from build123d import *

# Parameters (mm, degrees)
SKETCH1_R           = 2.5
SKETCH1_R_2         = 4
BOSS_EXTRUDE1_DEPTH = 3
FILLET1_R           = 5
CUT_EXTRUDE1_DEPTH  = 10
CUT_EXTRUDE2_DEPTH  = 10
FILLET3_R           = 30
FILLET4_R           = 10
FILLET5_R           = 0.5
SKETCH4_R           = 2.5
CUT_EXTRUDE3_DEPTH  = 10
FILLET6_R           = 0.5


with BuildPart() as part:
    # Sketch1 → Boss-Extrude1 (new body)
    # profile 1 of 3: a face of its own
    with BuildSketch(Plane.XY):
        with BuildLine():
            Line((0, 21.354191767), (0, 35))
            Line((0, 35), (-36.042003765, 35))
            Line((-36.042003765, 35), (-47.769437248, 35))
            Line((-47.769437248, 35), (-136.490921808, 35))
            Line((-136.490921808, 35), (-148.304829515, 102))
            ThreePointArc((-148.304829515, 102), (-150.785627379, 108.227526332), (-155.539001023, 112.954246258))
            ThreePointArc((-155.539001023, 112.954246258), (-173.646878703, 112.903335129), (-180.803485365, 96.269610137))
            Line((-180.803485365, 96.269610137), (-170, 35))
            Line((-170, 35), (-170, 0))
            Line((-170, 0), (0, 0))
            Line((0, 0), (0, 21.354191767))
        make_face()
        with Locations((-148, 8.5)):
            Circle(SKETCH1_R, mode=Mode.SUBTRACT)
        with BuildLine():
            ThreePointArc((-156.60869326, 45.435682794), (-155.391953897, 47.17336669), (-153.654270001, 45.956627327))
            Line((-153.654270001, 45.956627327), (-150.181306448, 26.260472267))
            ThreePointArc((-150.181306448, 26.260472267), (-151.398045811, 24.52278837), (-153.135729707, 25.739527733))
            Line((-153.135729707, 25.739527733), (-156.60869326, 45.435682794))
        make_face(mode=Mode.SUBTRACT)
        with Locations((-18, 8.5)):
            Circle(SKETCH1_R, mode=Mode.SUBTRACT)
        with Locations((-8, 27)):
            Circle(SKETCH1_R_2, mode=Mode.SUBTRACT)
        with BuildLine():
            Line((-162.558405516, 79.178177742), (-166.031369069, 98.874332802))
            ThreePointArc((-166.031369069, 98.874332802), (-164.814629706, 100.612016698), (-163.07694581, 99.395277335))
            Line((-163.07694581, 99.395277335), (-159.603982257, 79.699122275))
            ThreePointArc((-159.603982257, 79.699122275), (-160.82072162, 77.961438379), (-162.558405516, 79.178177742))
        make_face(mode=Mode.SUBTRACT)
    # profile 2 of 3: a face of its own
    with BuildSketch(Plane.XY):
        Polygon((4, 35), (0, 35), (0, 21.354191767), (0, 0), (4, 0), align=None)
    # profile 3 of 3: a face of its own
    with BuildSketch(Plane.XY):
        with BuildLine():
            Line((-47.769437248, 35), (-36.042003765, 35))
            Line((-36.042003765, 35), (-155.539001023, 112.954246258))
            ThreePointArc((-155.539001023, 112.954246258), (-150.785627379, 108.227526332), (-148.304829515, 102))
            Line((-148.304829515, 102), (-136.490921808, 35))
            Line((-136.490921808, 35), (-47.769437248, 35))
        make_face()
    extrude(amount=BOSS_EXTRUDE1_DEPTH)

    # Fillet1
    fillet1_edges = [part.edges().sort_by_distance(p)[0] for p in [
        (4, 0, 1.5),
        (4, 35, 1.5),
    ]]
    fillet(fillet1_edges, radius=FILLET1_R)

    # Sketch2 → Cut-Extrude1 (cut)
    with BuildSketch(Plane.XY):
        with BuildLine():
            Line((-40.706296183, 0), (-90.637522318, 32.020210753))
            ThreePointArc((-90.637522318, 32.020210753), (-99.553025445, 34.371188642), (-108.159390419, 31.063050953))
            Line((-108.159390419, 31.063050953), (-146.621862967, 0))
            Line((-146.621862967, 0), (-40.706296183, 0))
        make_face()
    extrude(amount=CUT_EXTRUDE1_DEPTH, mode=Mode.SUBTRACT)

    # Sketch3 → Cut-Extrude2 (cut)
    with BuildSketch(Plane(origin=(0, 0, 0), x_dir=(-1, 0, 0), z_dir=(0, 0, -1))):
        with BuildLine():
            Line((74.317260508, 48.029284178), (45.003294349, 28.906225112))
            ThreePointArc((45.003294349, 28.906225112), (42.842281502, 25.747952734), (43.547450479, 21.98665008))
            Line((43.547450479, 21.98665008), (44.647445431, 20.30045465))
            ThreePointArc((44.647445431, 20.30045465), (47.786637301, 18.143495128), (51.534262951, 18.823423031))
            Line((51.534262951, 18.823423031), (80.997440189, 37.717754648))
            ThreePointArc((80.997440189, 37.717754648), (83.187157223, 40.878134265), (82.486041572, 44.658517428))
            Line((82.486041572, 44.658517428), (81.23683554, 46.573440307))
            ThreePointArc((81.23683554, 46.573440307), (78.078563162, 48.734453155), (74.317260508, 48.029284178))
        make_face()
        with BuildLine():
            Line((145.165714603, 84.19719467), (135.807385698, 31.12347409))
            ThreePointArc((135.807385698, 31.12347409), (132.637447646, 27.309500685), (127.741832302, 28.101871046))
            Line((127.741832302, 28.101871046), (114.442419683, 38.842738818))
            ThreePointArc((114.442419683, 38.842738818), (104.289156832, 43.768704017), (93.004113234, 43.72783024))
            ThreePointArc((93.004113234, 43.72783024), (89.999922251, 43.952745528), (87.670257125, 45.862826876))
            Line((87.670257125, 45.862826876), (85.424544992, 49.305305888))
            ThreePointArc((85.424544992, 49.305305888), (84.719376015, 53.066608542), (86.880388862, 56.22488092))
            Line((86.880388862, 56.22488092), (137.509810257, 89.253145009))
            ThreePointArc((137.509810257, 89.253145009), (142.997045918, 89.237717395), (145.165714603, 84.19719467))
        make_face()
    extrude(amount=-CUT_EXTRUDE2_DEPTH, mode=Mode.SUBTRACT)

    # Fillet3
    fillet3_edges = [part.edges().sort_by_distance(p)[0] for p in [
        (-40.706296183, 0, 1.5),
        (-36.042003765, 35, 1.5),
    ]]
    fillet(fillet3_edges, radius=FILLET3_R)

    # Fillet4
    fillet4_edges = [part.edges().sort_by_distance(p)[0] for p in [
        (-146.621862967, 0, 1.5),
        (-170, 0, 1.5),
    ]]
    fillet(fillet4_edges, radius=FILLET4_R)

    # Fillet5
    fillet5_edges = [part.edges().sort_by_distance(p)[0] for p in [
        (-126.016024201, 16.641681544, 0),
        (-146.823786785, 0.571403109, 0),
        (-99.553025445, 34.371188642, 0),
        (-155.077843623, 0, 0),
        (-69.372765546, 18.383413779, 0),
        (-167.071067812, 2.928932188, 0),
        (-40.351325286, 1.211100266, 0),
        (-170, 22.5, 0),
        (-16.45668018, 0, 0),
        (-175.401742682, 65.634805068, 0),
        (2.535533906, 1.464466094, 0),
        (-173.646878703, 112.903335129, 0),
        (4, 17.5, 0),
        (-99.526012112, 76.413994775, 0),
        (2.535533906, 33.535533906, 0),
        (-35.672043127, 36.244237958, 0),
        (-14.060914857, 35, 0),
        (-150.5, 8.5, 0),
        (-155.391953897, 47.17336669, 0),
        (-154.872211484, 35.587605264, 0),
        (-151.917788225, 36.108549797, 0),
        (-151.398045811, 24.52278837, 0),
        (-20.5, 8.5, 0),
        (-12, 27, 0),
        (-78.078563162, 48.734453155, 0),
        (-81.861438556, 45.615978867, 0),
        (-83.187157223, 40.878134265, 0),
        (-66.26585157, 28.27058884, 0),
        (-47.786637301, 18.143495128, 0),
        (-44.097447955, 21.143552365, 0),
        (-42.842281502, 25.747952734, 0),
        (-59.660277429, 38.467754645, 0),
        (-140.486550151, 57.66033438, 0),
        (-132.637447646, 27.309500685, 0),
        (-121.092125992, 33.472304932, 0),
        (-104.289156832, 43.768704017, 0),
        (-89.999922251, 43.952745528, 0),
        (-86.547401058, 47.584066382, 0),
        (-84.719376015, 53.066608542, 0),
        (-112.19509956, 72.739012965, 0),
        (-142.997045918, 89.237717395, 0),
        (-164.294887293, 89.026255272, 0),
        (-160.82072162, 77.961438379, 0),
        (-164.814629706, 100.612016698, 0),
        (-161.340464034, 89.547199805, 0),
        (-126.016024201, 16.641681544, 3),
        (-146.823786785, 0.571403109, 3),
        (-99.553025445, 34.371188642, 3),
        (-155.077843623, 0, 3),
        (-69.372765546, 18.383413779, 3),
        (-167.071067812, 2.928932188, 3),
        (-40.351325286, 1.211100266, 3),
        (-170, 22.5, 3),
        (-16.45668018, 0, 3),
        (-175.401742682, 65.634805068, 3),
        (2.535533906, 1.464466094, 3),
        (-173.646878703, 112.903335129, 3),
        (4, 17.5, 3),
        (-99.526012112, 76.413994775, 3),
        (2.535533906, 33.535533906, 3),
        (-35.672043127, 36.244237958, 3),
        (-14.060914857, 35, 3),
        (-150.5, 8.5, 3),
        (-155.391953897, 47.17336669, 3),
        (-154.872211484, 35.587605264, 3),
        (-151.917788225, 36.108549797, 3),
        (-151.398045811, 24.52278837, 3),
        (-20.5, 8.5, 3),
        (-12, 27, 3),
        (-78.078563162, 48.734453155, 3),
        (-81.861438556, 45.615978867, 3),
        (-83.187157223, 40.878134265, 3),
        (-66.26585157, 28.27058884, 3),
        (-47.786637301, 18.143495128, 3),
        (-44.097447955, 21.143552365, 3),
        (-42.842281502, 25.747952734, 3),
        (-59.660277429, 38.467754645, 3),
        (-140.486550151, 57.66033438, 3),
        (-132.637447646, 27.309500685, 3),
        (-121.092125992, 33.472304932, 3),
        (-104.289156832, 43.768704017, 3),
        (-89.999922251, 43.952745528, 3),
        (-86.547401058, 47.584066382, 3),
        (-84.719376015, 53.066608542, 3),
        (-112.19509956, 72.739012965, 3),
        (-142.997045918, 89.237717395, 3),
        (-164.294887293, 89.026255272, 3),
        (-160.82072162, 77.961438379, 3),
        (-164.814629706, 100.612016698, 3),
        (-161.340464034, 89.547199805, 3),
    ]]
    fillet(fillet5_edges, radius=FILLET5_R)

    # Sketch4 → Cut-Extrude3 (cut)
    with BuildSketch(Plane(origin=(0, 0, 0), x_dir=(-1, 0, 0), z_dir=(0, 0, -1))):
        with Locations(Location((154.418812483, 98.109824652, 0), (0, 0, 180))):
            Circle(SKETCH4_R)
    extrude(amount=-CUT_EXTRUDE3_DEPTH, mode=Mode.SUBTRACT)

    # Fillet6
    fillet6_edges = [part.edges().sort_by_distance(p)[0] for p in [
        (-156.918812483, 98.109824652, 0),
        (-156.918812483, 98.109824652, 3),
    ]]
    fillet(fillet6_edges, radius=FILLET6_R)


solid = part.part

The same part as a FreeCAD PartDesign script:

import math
import FreeCAD as App
import Part
import Sketcher
Q = App.Units.Quantity


def edges_at(feature, points):
    """Names of the edges that pass closest to the given points."""
    edges = feature.Shape.Edges
    near = lambda p: min(range(len(edges)), key=lambda i: edges[i].distToShape(Part.Vertex(*p))[0])
    return sorted({f"Edge{near(p) + 1}" for p in points})

doc = App.newDocument("Part")
params = doc.addObject("Spreadsheet::Sheet", "Params")
for row, (alias, value) in enumerate([
    ("sketch1_diameter", "5 mm"),
    ("sketch1_diameter2", "8 mm"),
    ("sketch1_radius", "16.5 mm"),
    ("sketch1_radius2", "1.5 mm"),
    ("sketch1_width", "174 mm"),
    ("pad1_length", "3 mm"),
    ("fillet_radius", "5 mm"),
    ("sketch2_radius", "15 mm"),
    ("pocket1_length", "10 mm"),
    ("sketch3_radius", "5 mm"),
    ("sketch3_radius2", "25 mm"),
    ("sketch3_length", "35 mm"),
    ("pocket2_length", "10 mm"),
    ("fillet2_radius", "30 mm"),
    ("fillet3_radius", "10 mm"),
    ("fillet4_radius", "0.5 mm"),
    ("sketch4_diameter", "5 mm"),
    ("pocket3_length", "10 mm"),
    ("fillet5_radius", "0.5 mm"),
], start=1):
    params.set(f"A{row}", alias)
    params.set(f"B{row}", "=" + value)
    params.setAlias(f"B{row}", alias)

body = doc.addObject("PartDesign::Body", "Body")

sketch1 = body.newObject("Sketcher::SketchObject", "Sketch")
sketch1.AttachmentSupport = (doc.getObject("XY_Plane"), [""])
sketch1.MapMode = "FlatFace"
sketch1.addGeometry([
    Part.LineSegment(App.Vector(-36.042004, 35, 0), App.Vector(-155.539001, 112.954246, 0)),
    Part.ArcOfCircle(Part.Circle(App.Vector(-164.554157, 99.134805, 0), App.Vector(0, 0, 1), 16.5), math.radians(56.881452), math.radians(190)),
    Part.LineSegment(App.Vector(-180.803485, 96.26961, 0), App.Vector(-170, 35, 0)),
    Part.LineSegment(App.Vector(-170, 35, 0), App.Vector(-170, 0, 0)),
    Part.LineSegment(App.Vector(-170, 0, 0), App.Vector(4, 0, 0)),
    Part.LineSegment(App.Vector(4, 0, 0), App.Vector(4, 35, 0)),
    Part.LineSegment(App.Vector(4, 35, 0), App.Vector(-36.042004, 35, 0)),
    Part.Circle(App.Vector(-148, 8.5, 0), App.Vector(0, 0, 1), 2.5),
    Part.LineSegment(App.Vector(-153.13573, 25.739528, 0), App.Vector(-156.608693, 45.435683, 0)),
    Part.ArcOfCircle(Part.Circle(App.Vector(-155.131482, 45.696155, 0), App.Vector(0, 0, 1), 1.5), math.radians(10), math.radians(190)),
    Part.LineSegment(App.Vector(-153.65427, 45.956627, 0), App.Vector(-150.181306, 26.260472, 0)),
    Part.ArcOfCircle(Part.Circle(App.Vector(-151.658518, 26, 0), App.Vector(0, 0, 1), 1.5), math.radians(-170), math.radians(10)),
    Part.Circle(App.Vector(-18, 8.5, 0), App.Vector(0, 0, 1), 2.5),
    Part.Circle(App.Vector(-8, 27, 0), App.Vector(0, 0, 1), 4),
    Part.ArcOfCircle(Part.Circle(App.Vector(-161.081194, 79.43865, 0), App.Vector(0, 0, 1), 1.5), math.radians(-170), math.radians(10)),
    Part.LineSegment(App.Vector(-162.558406, 79.178178, 0), App.Vector(-166.031369, 98.874333, 0)),
    Part.ArcOfCircle(Part.Circle(App.Vector(-164.554157, 99.134805, 0), App.Vector(0, 0, 1), 1.5), math.radians(10), math.radians(190)),
    Part.LineSegment(App.Vector(-163.076946, 99.395277, 0), App.Vector(-159.603982, 79.699122, 0)),
], False)
sketch1.addConstraint([
    Sketcher.Constraint("Tangent", 0, 2, 1, 1),
    Sketcher.Constraint("Tangent", 1, 2, 2, 1),
    Sketcher.Constraint("Coincident", 2, 2, 3, 1),
    Sketcher.Constraint("Coincident", 3, 2, 4, 1),
    Sketcher.Constraint("Coincident", 4, 2, 5, 1),
    Sketcher.Constraint("Coincident", 5, 2, 6, 1),
    Sketcher.Constraint("Coincident", 6, 2, 0, 1),
    Sketcher.Constraint("Tangent", 8, 2, 9, 2),
    Sketcher.Constraint("Tangent", 9, 1, 10, 1),
    Sketcher.Constraint("Tangent", 10, 2, 11, 2),
    Sketcher.Constraint("Tangent", 11, 1, 8, 1),
    Sketcher.Constraint("Tangent", 14, 1, 15, 1),
    Sketcher.Constraint("Tangent", 15, 2, 16, 2),
    Sketcher.Constraint("Tangent", 16, 1, 17, 1),
    Sketcher.Constraint("Tangent", 17, 2, 14, 2),
    Sketcher.Constraint("Vertical", 3),
    Sketcher.Constraint("Horizontal", 4),
    Sketcher.Constraint("Vertical", 5),
    Sketcher.Constraint("Horizontal", 6),
    Sketcher.Constraint("Coincident", 16, 3, 1, 3),
    Sketcher.Constraint("Equal", 9, 11),
    Sketcher.Constraint("Equal", 7, 12),
    Sketcher.Constraint("Equal", 11, 14),
    Sketcher.Constraint("Equal", 14, 16),
    Sketcher.Constraint("PointOnObject", 3, 2, -1),
    Sketcher.Constraint("Parallel", 2, 8),
    Sketcher.Constraint("Parallel", 10, 15),
    Sketcher.Constraint("Horizontal", 7, 3, 12, 3),
    Sketcher.Constraint("Horizontal", 2, 2, 5, 2),
    Sketcher.Constraint("Equal", 10, 15),
    Sketcher.Constraint("Diameter", 7, Q("5 mm")),
    Sketcher.Constraint("Diameter", 13, Q("8 mm")),
    Sketcher.Constraint("Radius", 1, Q("16.5 mm")),
    Sketcher.Constraint("Radius", 9, Q("1.5 mm")),
    Sketcher.Constraint("DistanceX", 4, 1, 4, 2, Q("174 mm")),
    Sketcher.Constraint("DistanceY", 3, 2, 3, 1, Q("35 mm")),
    Sketcher.Constraint("Angle", 2, Q("-80 deg")),
    Sketcher.Constraint("Distance", 8, Q("20 mm")),
    Sketcher.Constraint("DistanceX", 7, 3, -1, 1, Q("148 mm")),
    Sketcher.Constraint("DistanceY", -1, 1, 11, 3, Q("26 mm")),
    Sketcher.Constraint("DistanceX", 12, 3, -1, 1, Q("18 mm")),
    Sketcher.Constraint("DistanceX", 13, 3, -1, 1, Q("8 mm")),
    Sketcher.Constraint("DistanceY", -1, 1, 13, 3, Q("27 mm")),
    Sketcher.Constraint("DistanceX", 2, 2, -1, 1, Q("170 mm")),
    Sketcher.Constraint("DistanceY", -1, 1, 7, 3, Q("8.5 mm")),
    Sketcher.Constraint("DistanceX", 0, 2, -1, 1, Q("155.539001 mm")),
    Sketcher.Constraint("DistanceX", 14, 3, 8, 2, Q("4.472501 mm")),
    Sketcher.Constraint("DistanceX", 6, 2, 6, 1, Q("40.042004 mm")),
])
sketch1.setExpression("Constraints[30]", "Params.sketch1_diameter")
sketch1.setExpression("Constraints[31]", "Params.sketch1_diameter2")
sketch1.setExpression("Constraints[32]", "Params.sketch1_radius")
sketch1.setExpression("Constraints[33]", "Params.sketch1_radius2")
sketch1.setExpression("Constraints[34]", "Params.sketch1_width")
pad1 = body.newObject("PartDesign::Pad", "Pad")
pad1.Profile = sketch1
pad1.setExpression("Length", "Params.pad1_length")
doc.recompute()

fillet = body.newObject("PartDesign::Fillet", "Fillet")
fillet.Base = (pad1, edges_at(pad1, [(4, 0, 1.5), (4, 35, 1.5)]))
fillet.setExpression("Radius", "Params.fillet_radius")

sketch2 = body.newObject("Sketcher::SketchObject", "Sketch001")
sketch2.AttachmentSupport = (doc.getObject("XY_Plane"), [""])
sketch2.MapMode = "FlatFace"
sketch2.addGeometry([
    Part.LineSegment(App.Vector(-40.706296, 0, 0), App.Vector(-90.637522, 32.020211, 0)),
    Part.ArcOfCircle(Part.Circle(App.Vector(-98.734847, 19.393519, 0), App.Vector(0, 0, 1), 15), math.radians(57.328504), math.radians(128.925026)),
    Part.LineSegment(App.Vector(-108.15939, 31.063051, 0), App.Vector(-146.621863, 0, 0)),
    Part.LineSegment(App.Vector(-146.621863, 0, 0), App.Vector(-40.706296, 0, 0)),
], False)
sketch2.addConstraint([
    Sketcher.Constraint("Tangent", 0, 2, 1, 1),
    Sketcher.Constraint("Tangent", 1, 2, 2, 1),
    Sketcher.Constraint("Coincident", 2, 2, 3, 1),
    Sketcher.Constraint("Coincident", 3, 2, 0, 1),
    Sketcher.Constraint("Horizontal", 3),
    Sketcher.Constraint("PointOnObject", 2, 2, -1),
    Sketcher.Constraint("Radius", 1, Q("15 mm")),
    Sketcher.Constraint("Distance", 0, Q("59.316281 mm")),
    Sketcher.Constraint("Distance", 2, Q("49.439609 mm")),
    Sketcher.Constraint("DistanceX", 3, 1, 3, 2, Q("105.915567 mm")),
    Sketcher.Constraint("DistanceX", 1, 2, -1, 1, Q("108.15939 mm")),
])
sketch2.setExpression("Constraints[6]", "Params.sketch2_radius")
pocket1 = body.newObject("PartDesign::Pocket", "Pocket")
pocket1.Profile = sketch2
pocket1.setExpression("Length", "Params.pocket1_length")
pocket1.Reversed = True

sketch3 = body.newObject("Sketcher::SketchObject", "Sketch002")
sketch3.AttachmentSupport = (doc.getObject("XY_Plane"), [""])
sketch3.MapMode = "FlatFace"
sketch3.addGeometry([
    Part.LineSegment(App.Vector(-74.317261, 48.029284, 0), App.Vector(-45.003294, 28.906225, 0)),
    Part.ArcOfCircle(Part.Circle(App.Vector(-47.73516, 24.718516, 0), App.Vector(0, 0, 1), 5), math.radians(-33.118548), math.radians(56.881452)),
    Part.LineSegment(App.Vector(-43.54745, 21.98665, 0), App.Vector(-44.647445, 20.300455, 0)),
    Part.ArcOfCircle(Part.Circle(App.Vector(-48.835155, 23.03232, 0), App.Vector(0, 0, 1), 5), math.radians(-122.671496), math.radians(-33.118548)),
    Part.LineSegment(App.Vector(-51.534263, 18.823423, 0), App.Vector(-80.99744, 37.717755, 0)),
    Part.ArcOfCircle(Part.Circle(App.Vector(-78.298332, 41.926652, 0), App.Vector(0, 0, 1), 5), math.radians(146.881452), math.radians(237.328504)),
    Part.LineSegment(App.Vector(-82.486042, 44.658517, 0), App.Vector(-81.236836, 46.57344, 0)),
    Part.ArcOfCircle(Part.Circle(App.Vector(-77.049126, 43.841575, 0), App.Vector(0, 0, 1), 5), math.radians(56.881452), math.radians(146.881452)),
    Part.LineSegment(App.Vector(-135.807386, 31.123474, 0), App.Vector(-145.165715, 84.197195, 0)),
    Part.ArcOfCircle(Part.Circle(App.Vector(-140.241676, 85.065436, 0), App.Vector(0, 0, 1), 5), math.radians(56.881452), math.radians(190)),
    Part.LineSegment(App.Vector(-137.50981, 89.253145, 0), App.Vector(-86.880389, 56.224881, 0)),
    Part.ArcOfCircle(Part.Circle(App.Vector(-89.612254, 52.037171, 0), App.Vector(0, 0, 1), 5), math.radians(-33.118548), math.radians(56.881452)),
    Part.LineSegment(App.Vector(-85.424545, 49.305306, 0), App.Vector(-87.670257, 45.862827, 0)),
    Part.ArcOfCircle(Part.Circle(App.Vector(-91.857967, 48.594692, 0), App.Vector(0, 0, 1), 5), math.radians(-103.251704), math.radians(-33.118548)),
    Part.ArcOfCircle(Part.Circle(App.Vector(-98.734847, 19.393519, 0), App.Vector(0, 0, 1), 25), math.radians(76.748296), math.radians(128.925026)),
    Part.LineSegment(App.Vector(-114.44242, 38.842739, 0), App.Vector(-127.741832, 28.101871, 0)),
    Part.ArcOfCircle(Part.Circle(App.Vector(-130.883347, 31.991715, 0), App.Vector(0, 0, 1), 5), math.radians(-170), math.radians(-51.074974)),
], False)
sketch3.addConstraint([
    Sketcher.Constraint("Tangent", 0, 2, 1, 2),
    Sketcher.Constraint("Tangent", 1, 1, 2, 1),
    Sketcher.Constraint("Tangent", 2, 2, 3, 2),
    Sketcher.Constraint("Tangent", 3, 1, 4, 1),
    Sketcher.Constraint("Tangent", 4, 2, 5, 2),
    Sketcher.Constraint("Tangent", 5, 1, 6, 1),
    Sketcher.Constraint("Tangent", 6, 2, 7, 2),
    Sketcher.Constraint("Tangent", 7, 1, 0, 1),
    Sketcher.Constraint("Tangent", 8, 2, 9, 2),
    Sketcher.Constraint("Tangent", 9, 1, 10, 1),
    Sketcher.Constraint("Tangent", 10, 2, 11, 2),
    Sketcher.Constraint("Tangent", 11, 1, 12, 1),
    Sketcher.Constraint("Tangent", 12, 2, 13, 2),
    Sketcher.Constraint("Tangent", 13, 1, 14, 1),
    Sketcher.Constraint("Tangent", 14, 2, 15, 1),
    Sketcher.Constraint("Tangent", 15, 2, 16, 2),
    Sketcher.Constraint("Tangent", 16, 1, 8, 1),
    Sketcher.Constraint("Equal", 1, 3),
    Sketcher.Constraint("Equal", 3, 5),
    Sketcher.Constraint("Equal", 5, 7),
    Sketcher.Constraint("Equal", 7, 9),
    Sketcher.Constraint("Equal", 9, 11),
    Sketcher.Constraint("Equal", 11, 13),
    Sketcher.Constraint("Equal", 13, 16),
    Sketcher.Constraint("Perpendicular", 0, 2),
    Sketcher.Constraint("Parallel", 2, 6),
    Sketcher.Constraint("Perpendicular", 6, 10),
    Sketcher.Constraint("Perpendicular", 10, 12),
    Sketcher.Constraint("Radius", 1, Q("5 mm")),
    Sketcher.Constraint("Radius", 14, Q("25 mm")),
    Sketcher.Constraint("Angle", 8, Q("100 deg")),
    Sketcher.Constraint("Distance", 0, Q("35 mm")),
    Sketcher.Constraint("DistanceY", 1, 1, 5, 3, Q("19.940002 mm")),
    Sketcher.Constraint("DistanceX", 11, 3, 3, 3, Q("40.7771 mm")),
    Sketcher.Constraint("DistanceY", 14, 3, 3, 3, Q("3.638801 mm")),
    Sketcher.Constraint("DistanceX", 16, 3, 14, 3, Q("32.1485 mm")),
    Sketcher.Constraint("DistanceX", 5, 1, 4, 2, Q("1.488601 mm")),
    Sketcher.Constraint("Distance", 6, Q("2.286361 mm")),
    Sketcher.Constraint("Distance", 8, Q("53.892468 mm")),
    Sketcher.Constraint("DistanceX", 1, 3, -1, 1, Q("47.73516 mm")),
    Sketcher.Constraint("DistanceY", -1, 1, 3, 3, Q("23.03232 mm")),
    Sketcher.Constraint("DistanceY", -1, 1, 11, 3, Q("52.037171 mm")),
    Sketcher.Constraint("DistanceX", 9, 1, -1, 1, Q("137.50981 mm")),
])
sketch3.setExpression("Constraints[28]", "Params.sketch3_radius")
sketch3.setExpression("Constraints[29]", "Params.sketch3_radius2")
sketch3.setExpression("Constraints[31]", "Params.sketch3_length")
pocket2 = body.newObject("PartDesign::Pocket", "Pocket001")
pocket2.Profile = sketch3
pocket2.setExpression("Length", "Params.pocket2_length")
pocket2.Reversed = True
doc.recompute()

fillet2 = body.newObject("PartDesign::Fillet", "Fillet001")
fillet2.Base = (pocket2, edges_at(pocket2, [(-40.706, 0, 1.5), (-36.042, 35, 1.5)]))
fillet2.setExpression("Radius", "Params.fillet2_radius")
doc.recompute()

fillet3 = body.newObject("PartDesign::Fillet", "Fillet002")
fillet3.Base = (fillet2, edges_at(fillet2, [(-146.622, 0, 1.5), (-170, 0, 1.5)]))
fillet3.setExpression("Radius", "Params.fillet3_radius")
doc.recompute()

fillet4 = body.newObject("PartDesign::Fillet", "Fillet003")
fillet4.Base = (fillet3, edges_at(fillet3, [
    (-126.016, 16.642, 0),
    (-146.824, 0.571, 0),
    (-99.553, 34.371, 0),
    (-155.078, 0, 0),
    (-69.373, 18.383, 0),
    (-167.071, 2.929, 0),
    (-40.351, 1.211, 0),
    (-170, 22.5, 0),
    (-16.457, 0, 0),
    (-175.402, 65.635, 0),
    (2.536, 1.464, 0),
    (-173.647, 112.903, 0),
    (4, 17.5, 0),
    (-99.526, 76.414, 0),
    (2.536, 33.536, 0),
    (-35.672, 36.244, 0),
    (-14.061, 35, 0),
    (-150.5, 8.5, 0),
    (-155.392, 47.173, 0),
    (-154.872, 35.588, 0),
    (-151.918, 36.109, 0),
    (-151.398, 24.523, 0),
    (-20.5, 8.5, 0),
    (-12, 27, 0),
    (-78.079, 48.734, 0),
    (-81.861, 45.616, 0),
    (-83.187, 40.878, 0),
    (-66.266, 28.271, 0),
    (-47.787, 18.143, 0),
    (-44.097, 21.144, 0),
    (-42.842, 25.748, 0),
    (-59.66, 38.468, 0),
    (-140.487, 57.66, 0),
    (-132.637, 27.31, 0),
    (-121.092, 33.472, 0),
    (-104.289, 43.769, 0),
    (-90, 43.953, 0),
    (-86.547, 47.584, 0),
    (-84.719, 53.067, 0),
    (-112.195, 72.739, 0),
    (-142.997, 89.238, 0),
    (-164.295, 89.026, 0),
    (-160.821, 77.961, 0),
    (-164.815, 100.612, 0),
    (-161.34, 89.547, 0),
    (-126.016, 16.642, 3),
    (-146.824, 0.571, 3),
    (-99.553, 34.371, 3),
    (-155.078, 0, 3),
    (-69.373, 18.383, 3),
    (-167.071, 2.929, 3),
    (-40.351, 1.211, 3),
    (-170, 22.5, 3),
    (-16.457, 0, 3),
    (-175.402, 65.635, 3),
    (2.536, 1.464, 3),
    (-173.647, 112.903, 3),
    (4, 17.5, 3),
    (-99.526, 76.414, 3),
    (2.536, 33.536, 3),
    (-35.672, 36.244, 3),
    (-14.061, 35, 3),
    (-150.5, 8.5, 3),
    (-155.392, 47.173, 3),
    (-154.872, 35.588, 3),
    (-151.918, 36.109, 3),
    (-151.398, 24.523, 3),
    (-20.5, 8.5, 3),
    (-12, 27, 3),
    (-78.079, 48.734, 3),
    (-81.861, 45.616, 3),
    (-83.187, 40.878, 3),
    (-66.266, 28.271, 3),
    (-47.787, 18.143, 3),
    (-44.097, 21.144, 3),
    (-42.842, 25.748, 3),
    (-59.66, 38.468, 3),
    (-140.487, 57.66, 3),
    (-132.637, 27.31, 3),
    (-121.092, 33.472, 3),
    (-104.289, 43.769, 3),
    (-90, 43.953, 3),
    (-86.547, 47.584, 3),
    (-84.719, 53.067, 3),
    (-112.195, 72.739, 3),
    (-142.997, 89.238, 3),
    (-164.295, 89.026, 3),
    (-160.821, 77.961, 3),
    (-164.815, 100.612, 3),
    (-161.34, 89.547, 3),
]))
fillet4.setExpression("Radius", "Params.fillet4_radius")

sketch4 = body.newObject("Sketcher::SketchObject", "Sketch003")
sketch4.AttachmentSupport = (doc.getObject("XY_Plane"), [""])
sketch4.MapMode = "FlatFace"
sketch4.addGeometry(Part.Circle(App.Vector(-154.418812, 98.109825, 0), App.Vector(0, 0, 1), 2.5), False)
sketch4.addConstraint([
    Sketcher.Constraint("Diameter", 0, Q("5 mm")),
    Sketcher.Constraint("DistanceX", 0, 3, -1, 1, Q("154.418812 mm")),
    Sketcher.Constraint("DistanceY", -1, 1, 0, 3, Q("98.109825 mm")),
])
sketch4.setExpression("Constraints[0]", "Params.sketch4_diameter")
pocket3 = body.newObject("PartDesign::Pocket", "Pocket002")
pocket3.Profile = sketch4
pocket3.setExpression("Length", "Params.pocket3_length")
pocket3.Reversed = True
doc.recompute()

fillet5 = body.newObject("PartDesign::Fillet", "Fillet004")
fillet5.Base = (pocket3, edges_at(pocket3, [(-156.919, 98.11, 0), (-156.919, 98.11, 3)]))
fillet5.setExpression("Radius", "Params.fillet5_radius")

doc.recompute()
